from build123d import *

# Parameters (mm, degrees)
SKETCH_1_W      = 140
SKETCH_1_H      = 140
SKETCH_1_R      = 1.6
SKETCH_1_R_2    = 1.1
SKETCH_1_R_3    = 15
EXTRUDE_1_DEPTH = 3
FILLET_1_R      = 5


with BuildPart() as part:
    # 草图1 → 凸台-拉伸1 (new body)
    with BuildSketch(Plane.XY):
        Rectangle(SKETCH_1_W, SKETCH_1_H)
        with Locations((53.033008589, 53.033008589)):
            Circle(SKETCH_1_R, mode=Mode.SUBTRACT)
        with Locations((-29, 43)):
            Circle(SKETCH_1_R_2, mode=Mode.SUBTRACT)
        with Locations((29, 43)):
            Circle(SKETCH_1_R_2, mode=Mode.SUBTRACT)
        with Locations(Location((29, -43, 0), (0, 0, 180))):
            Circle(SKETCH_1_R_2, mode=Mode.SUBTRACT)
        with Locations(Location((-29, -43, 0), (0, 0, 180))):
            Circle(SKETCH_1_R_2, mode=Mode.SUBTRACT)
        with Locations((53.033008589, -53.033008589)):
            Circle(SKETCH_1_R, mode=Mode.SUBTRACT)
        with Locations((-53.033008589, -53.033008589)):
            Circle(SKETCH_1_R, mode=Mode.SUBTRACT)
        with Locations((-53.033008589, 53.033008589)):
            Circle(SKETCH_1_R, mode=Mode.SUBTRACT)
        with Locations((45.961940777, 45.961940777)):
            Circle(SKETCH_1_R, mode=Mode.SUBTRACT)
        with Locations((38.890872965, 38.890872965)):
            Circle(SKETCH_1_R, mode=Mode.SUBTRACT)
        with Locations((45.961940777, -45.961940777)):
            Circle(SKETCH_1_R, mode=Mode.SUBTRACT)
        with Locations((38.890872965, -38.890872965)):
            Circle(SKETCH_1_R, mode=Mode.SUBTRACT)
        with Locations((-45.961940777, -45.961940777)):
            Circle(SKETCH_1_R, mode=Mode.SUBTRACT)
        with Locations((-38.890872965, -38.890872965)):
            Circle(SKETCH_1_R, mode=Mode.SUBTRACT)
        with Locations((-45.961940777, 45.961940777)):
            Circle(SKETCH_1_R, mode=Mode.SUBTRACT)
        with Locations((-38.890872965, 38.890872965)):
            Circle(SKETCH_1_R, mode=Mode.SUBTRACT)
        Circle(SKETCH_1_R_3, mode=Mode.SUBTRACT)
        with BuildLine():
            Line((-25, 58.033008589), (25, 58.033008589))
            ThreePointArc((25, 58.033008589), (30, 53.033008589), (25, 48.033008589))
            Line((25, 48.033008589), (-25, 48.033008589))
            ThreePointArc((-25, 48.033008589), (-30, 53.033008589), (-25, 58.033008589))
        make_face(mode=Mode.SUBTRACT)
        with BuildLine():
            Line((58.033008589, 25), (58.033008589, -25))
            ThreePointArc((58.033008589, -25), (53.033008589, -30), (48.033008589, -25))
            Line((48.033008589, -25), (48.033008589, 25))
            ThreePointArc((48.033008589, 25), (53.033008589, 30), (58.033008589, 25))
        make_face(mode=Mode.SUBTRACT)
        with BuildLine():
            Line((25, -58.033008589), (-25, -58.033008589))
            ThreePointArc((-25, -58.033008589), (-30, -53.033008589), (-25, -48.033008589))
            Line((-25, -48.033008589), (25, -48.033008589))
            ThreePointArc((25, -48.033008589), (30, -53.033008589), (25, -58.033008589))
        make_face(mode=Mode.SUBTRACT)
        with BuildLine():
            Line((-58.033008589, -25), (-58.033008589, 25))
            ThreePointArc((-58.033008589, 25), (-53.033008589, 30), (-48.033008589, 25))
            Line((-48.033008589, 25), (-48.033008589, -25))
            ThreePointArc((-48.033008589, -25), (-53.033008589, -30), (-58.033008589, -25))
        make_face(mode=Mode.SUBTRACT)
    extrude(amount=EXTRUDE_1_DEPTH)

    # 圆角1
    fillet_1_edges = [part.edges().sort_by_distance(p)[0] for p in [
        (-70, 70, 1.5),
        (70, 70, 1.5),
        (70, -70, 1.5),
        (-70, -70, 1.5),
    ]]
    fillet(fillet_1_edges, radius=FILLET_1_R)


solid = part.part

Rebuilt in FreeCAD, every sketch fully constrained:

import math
import FreeCAD as App
import Part
import Sketcher
from FreeCAD import Vector
Q = App.Units.Quantity


def edges_at(feature, points):
    """Names of the edges that pass closest to the given points."""
    edges = feature.Shape.Edges
    near = lambda p: min(range(len(edges)), key=lambda i: edges[i].distToShape(Part.Vertex(*p))[0])
    return sorted({f"Edge{near(p) + 1}" for p in points})

doc = App.newDocument("Part")
body = doc.addObject("PartDesign::Body", "Body")

sketch1 = body.newObject("Sketcher::SketchObject", "Sketch")
sketch1.AttachmentSupport = (doc.getObject("XY_Plane"), [""])
sketch1.MapMode = "FlatFace"
sketch1.addGeometry(Part.LineSegment(Vector(-70, 70, 0), Vector(-70, -70, 0)), False)
sketch1.addGeometry(Part.LineSegment(Vector(-70, -70, 0), Vector(70, -70, 0)), False)
sketch1.addGeometry(Part.LineSegment(Vector(70, -70, 0), Vector(70, 70, 0)), False)
sketch1.addGeometry(Part.LineSegment(Vector(70, 70, 0), Vector(-70, 70, 0)), False)
sketch1.addGeometry(Part.Circle(Vector(-53.033009, -53.033009, 0), Vector(0, 0, 1), 1.6), False)
sketch1.addGeometry(Part.Circle(Vector(-45.961941, -45.961941, 0), Vector(0, 0, 1), 1.6), False)
sketch1.addGeometry(Part.Circle(Vector(-38.890873, -38.890873, 0), Vector(0, 0, 1), 1.6), False)
sketch1.addGeometry(Part.ArcOfCircle(Part.Circle(Vector(25, -53.033009, 0), Vector(0, 0, 1), 5), math.radians(-90), math.radians(90)), False)
sketch1.addGeometry(Part.LineSegment(Vector(25, -58.033009, 0), Vector(-25, -58.033009, 0)), False)
sketch1.addGeometry(Part.ArcOfCircle(Part.Circle(Vector(-25, -53.033009, 0), Vector(0, 0, 1), 5), math.radians(90), math.radians(270)), False)
sketch1.addGeometry(Part.LineSegment(Vector(-25, -48.033009, 0), Vector(25, -48.033009, 0)), False)
sketch1.addGeometry(Part.Circle(Vector(-29, -43, 0), Vector(0, 0, 1), 1.1), False)
sketch1.addGeometry(Part.ArcOfCircle(Part.Circle(Vector(-53.033009, -25, 0), Vector(0, 0, 1), 5), math.radians(180), math.radians(360)), False)
sketch1.addGeometry(Part.LineSegment(Vector(-58.033009, -25, 0), Vector(-58.033009, 25, 0)), False)
sketch1.addGeometry(Part.ArcOfCircle(Part.Circle(Vector(-53.033009, 25, 0), Vector(0, 0, 1), 5), math.radians(0), math.radians(180)), False)
sketch1.addGeometry(Part.LineSegment(Vector(-48.033009, 25, 0), Vector(-48.033009, -25, 0)), False)
sketch1.addGeometry(Part.Circle(Vector(0, 0, 0), Vector(0, 0, 1), 15), False)
sketch1.addGeometry(Part.Circle(Vector(29, -43, 0), Vector(0, 0, 1), 1.1), False)
sketch1.addGeometry(Part.Circle(Vector(53.033009, -53.033009, 0), Vector(0, 0, 1), 1.6), False)
sketch1.addGeometry(Part.Circle(Vector(45.961941, -45.961941, 0), Vector(0, 0, 1), 1.6), False)
sketch1.addGeometry(Part.Circle(Vector(38.890873, -38.890873, 0), Vector(0, 0, 1), 1.6), False)
sketch1.addGeometry(Part.ArcOfCircle(Part.Circle(Vector(53.033009, 25, 0), Vector(0, 0, 1), 5), math.radians(0), math.radians(180)), False)
sketch1.addGeometry(Part.LineSegment(Vector(58.033009, 25, 0), Vector(58.033009, -25, 0)), False)
sketch1.addGeometry(Part.ArcOfCircle(Part.Circle(Vector(53.033009, -25, 0), Vector(0, 0, 1), 5), math.radians(180), math.radians(360)), False)
sketch1.addGeometry(Part.LineSegment(Vector(48.033009, -25, 0), Vector(48.033009, 25, 0)), False)
sketch1.addGeometry(Part.Circle(Vector(-38.890873, 38.890873, 0), Vector(0, 0, 1), 1.6), False)
sketch1.addGeometry(Part.Circle(Vector(-45.961941, 45.961941, 0), Vector(0, 0, 1), 1.6), False)
sketch1.addGeometry(Part.Circle(Vector(-53.033009, 53.033009, 0), Vector(0, 0, 1), 1.6), False)
sketch1.addGeometry(Part.Circle(Vector(-29, 43, 0), Vector(0, 0, 1), 1.1), False)
sketch1.addGeometry(Part.ArcOfCircle(Part.Circle(Vector(-25, 53.033009, 0), Vector(0, 0, 1), 5), math.radians(90), math.radians(270)), False)
sketch1.addGeometry(Part.LineSegment(Vector(-25, 58.033009, 0), Vector(25, 58.033009, 0)), False)
sketch1.addGeometry(Part.ArcOfCircle(Part.Circle(Vector(25, 53.033009, 0), Vector(0, 0, 1), 5), math.radians(-90), math.radians(90)), False)
sketch1.addGeometry(Part.LineSegment(Vector(25, 48.033009, 0), Vector(-25, 48.033009, 0)), False)
sketch1.addGeometry(Part.Circle(Vector(29, 43, 0), Vector(0, 0, 1), 1.1), False)
sketch1.addGeometry(Part.Circle(Vector(38.890873, 38.890873, 0), Vector(0, 0, 1), 1.6), False)
sketch1.addGeometry(Part.Circle(Vector(45.961941, 45.961941, 0), Vector(0, 0, 1), 1.6), False)
sketch1.addGeometry(Part.Circle(Vector(53.033009, 53.033009, 0), Vector(0, 0, 1), 1.6), False)
sketch1.addConstraint(Sketcher.Constraint("Coincident", 0, 2, 1, 1))
sketch1.addConstraint(Sketcher.Constraint("Coincident", 1, 2, 2, 1))
sketch1.addConstraint(Sketcher.Constraint("Coincident", 2, 2, 3, 1))
sketch1.addConstraint(Sketcher.Constraint("Coincident", 3, 2, 0, 1))
sketch1.addConstraint(Sketcher.Constraint("Tangent", 7, 1, 8, 1))
sketch1.addConstraint(Sketcher.Constraint("Tangent", 8, 2, 9, 2))
sketch1.addConstraint(Sketcher.Constraint("Tangent", 9, 1, 10, 1))
sketch1.addConstraint(Sketcher.Constraint("Tangent", 10, 2, 7, 2))
sketch1.addConstraint(Sketcher.Constraint("Tangent", 12, 1, 13, 1))
sketch1.addConstraint(Sketcher.Constraint("Tangent", 13, 2, 14, 2))
sketch1.addConstraint(Sketcher.Constraint("Tangent", 14, 1, 15, 1))
sketch1.addConstraint(Sketcher.Constraint("Tangent", 15, 2, 12, 2))
sketch1.addConstraint(Sketcher.Constraint("Tangent", 21, 1, 22, 1))
sketch1.addConstraint(Sketcher.Constraint("Tangent", 22, 2, 23, 2))
sketch1.addConstraint(Sketcher.Constraint("Tangent", 23, 1, 24, 1))
sketch1.addConstraint(Sketcher.Constraint("Tangent", 24, 2, 21, 2))
sketch1.addConstraint(Sketcher.Constraint("Tangent", 29, 1, 30, 1))
sketch1.addConstraint(Sketcher.Constraint("Tangent", 30, 2, 31, 2))
sketch1.addConstraint(Sketcher.Constraint("Tangent", 31, 1, 32, 1))
sketch1.addConstraint(Sketcher.Constraint("Tangent", 32, 2, 29, 2))
sketch1.addConstraint(Sketcher.Constraint("Vertical", 0))
sketch1.addConstraint(Sketcher.Constraint("Horizontal", 1))
sketch1.addConstraint(Sketcher.Constraint("Vertical", 2))
sketch1.addConstraint(Sketcher.Constraint("Horizontal", 3))
sketch1.addConstraint(Sketcher.Constraint("Horizontal", 8))
sketch1.addConstraint(Sketcher.Constraint("Horizontal", 10))
sketch1.addConstraint(Sketcher.Constraint("Vertical", 13))
sketch1.addConstraint(Sketcher.Constraint("Vertical", 15))
sketch1.addConstraint(Sketcher.Constraint("Vertical", 22))
sketch1.addConstraint(Sketcher.Constraint("Vertical", 24))
sketch1.addConstraint(Sketcher.Constraint("Horizontal", 30))
sketch1.addConstraint(Sketcher.Constraint("Horizontal", 32))
sketch1.addConstraint(Sketcher.Constraint("Coincident", 16, 3, -1, 1))
sketch1.addConstraint(Sketcher.Constraint("Equal", 4, 5))
sketch1.addConstraint(Sketcher.Constraint("Equal", 5, 6))
sketch1.addConstraint(Sketcher.Constraint("Equal", 9, 12))
sketch1.addConstraint(Sketcher.Constraint("Equal", 11, 17))
sketch1.addConstraint(Sketcher.Constraint("Equal", 6, 18))
sketch1.addConstraint(Sketcher.Constraint("Equal", 18, 19))
sketch1.addConstraint(Sketcher.Constraint("Equal", 19, 20))
sketch1.addConstraint(Sketcher.Constraint("Equal", 14, 21))
sketch1.addConstraint(Sketcher.Constraint("Equal", 20, 25))
sketch1.addConstraint(Sketcher.Constraint("Equal", 25, 26))
sketch1.addConstraint(Sketcher.Constraint("Equal", 26, 27))
sketch1.addConstraint(Sketcher.Constraint("Equal", 17, 28))
sketch1.addConstraint(Sketcher.Constraint("Equal", 23, 29))
sketch1.addConstraint(Sketcher.Constraint("Equal", 28, 33))
sketch1.addConstraint(Sketcher.Constraint("Equal", 27, 34))
sketch1.addConstraint(Sketcher.Constraint("Equal", 34, 35))
sketch1.addConstraint(Sketcher.Constraint("Equal", 35, 36))
sketch1.addConstraint(Sketcher.Constraint("Symmetric", 12, 3, 21, 3, -1, 1))
sketch1.addConstraint(Sketcher.Constraint("Symmetric", 20, 3, 25, 3, -1, 1))
sketch1.addConstraint(Sketcher.Constraint("Symmetric", 19, 3, 26, 3, -1, 1))
sketch1.addConstraint(Sketcher.Constraint("Symmetric", 18, 3, 27, 3, -1, 1))
sketch1.addConstraint(Sketcher.Constraint("Symmetric", 17, 3, 28, 3, -1, 1))
sketch1.addConstraint(Sketcher.Constraint("Symmetric", 7, 3, 29, 3, -1, 1))
sketch1.addConstraint(Sketcher.Constraint("Symmetric", 11, 3, 33, 3, -1, 1))
sketch1.addConstraint(Sketcher.Constraint("Symmetric", 6, 3, 34, 3, -1, 1))
sketch1.addConstraint(Sketcher.Constraint("Symmetric", 5, 3, 35, 3, -1, 1))
sketch1.addConstraint(Sketcher.Constraint("Symmetric", 4, 3, 36, 3, -1, 1))
sketch1.addConstraint(Sketcher.Constraint("Symmetric", 0, 2, 2, 2, -1, 1))
sketch1.addConstraint(Sketcher.Constraint("Symmetric", 11, 3, 17, 3, -2))
sketch1.addConstraint(Sketcher.Constraint("Symmetric", 4, 3, 18, 3, -2))
sketch1.addConstraint(Sketcher.Constraint("Symmetric", 5, 3, 19, 3, -2))
sketch1.addConstraint(Sketcher.Constraint("Symmetric", 6, 3, 20, 3, -2))
sketch1.addConstraint(Sketcher.Constraint("Horizontal", 4, 3, 7, 3))
sketch1.addConstraint(Sketcher.Constraint("Horizontal", 14, 3, 21, 3))
sketch1.addConstraint(Sketcher.Constraint("Horizontal", 12, 3, 23, 3))
sketch1.addConstraint(Sketcher.Constraint("Vertical", 4, 3, 12, 3))
sketch1.addConstraint(Sketcher.Constraint("Vertical", 9, 3, 29, 3))
sketch1.addConstraint(Sketcher.Constraint("Vertical", 7, 3, 31, 3))
sketch1.addConstraint(Sketcher.Constraint("Equal", 3, 0))
sketch1.addConstraint(Sketcher.Constraint("Equal", 32, 13))
sketch1.addConstraint(Sketcher.Constraint("Diameter", 16, Q("30 mm")))
sketch1.addConstraint(Sketcher.Constraint("Radius", 7, Q("5 mm")))
sketch1.addConstraint(Sketcher.Constraint("Diameter", 4, Q("3.2 mm")))
sketch1.addConstraint(Sketcher.Constraint("Diameter", 11, Q("2.2 mm")))
sketch1.addConstraint(Sketcher.Constraint("DistanceX", 1, 1, 1, 2, Q("140 mm")))
sketch1.addConstraint(Sketcher.Constraint("DistanceX", 8, 2, 8, 1, Q("50 mm")))
sketch1.addConstraint(Sketcher.Constraint("DistanceX", 11, 3, -1, 1, Q("29 mm")))
sketch1.addConstraint(Sketcher.Constraint("DistanceY", 11, 3, -1, 1, Q("43 mm")))
sketch1.addConstraint(Sketcher.Constraint("DistanceX", 4, 3, -1, 1, Q("53.033009 mm")))
sketch1.addConstraint(Sketcher.Constraint("DistanceY", 4, 3, -1, 1, Q("53.033009 mm")))
sketch1.addConstraint(Sketcher.Constraint("DistanceX", 5, 3, -1, 1, Q("45.961941 mm")))
sketch1.addConstraint(Sketcher.Constraint("DistanceY", 5, 3, -1, 1, Q("45.961941 mm")))
sketch1.addConstraint(Sketcher.Constraint("DistanceX", 6, 3, -1, 1, Q("38.890873 mm")))
sketch1.addConstraint(Sketcher.Constraint("DistanceY", 6, 3, -1, 1, Q("38.890873 mm")))
pad1 = body.newObject("PartDesign::Pad", "Pad")
pad1.Profile = sketch1
pad1.Length = 3
doc.recompute()

fillet = body.newObject("PartDesign::Fillet", "Fillet")
fillet.Base = (pad1, edges_at(pad1, [
    (-70, 70, 1.5),
    (70, 70, 1.5),
    (70, -70, 1.5),
    (-70, -70, 1.5),
]))
fillet.Radius = 5

doc.recompute()
